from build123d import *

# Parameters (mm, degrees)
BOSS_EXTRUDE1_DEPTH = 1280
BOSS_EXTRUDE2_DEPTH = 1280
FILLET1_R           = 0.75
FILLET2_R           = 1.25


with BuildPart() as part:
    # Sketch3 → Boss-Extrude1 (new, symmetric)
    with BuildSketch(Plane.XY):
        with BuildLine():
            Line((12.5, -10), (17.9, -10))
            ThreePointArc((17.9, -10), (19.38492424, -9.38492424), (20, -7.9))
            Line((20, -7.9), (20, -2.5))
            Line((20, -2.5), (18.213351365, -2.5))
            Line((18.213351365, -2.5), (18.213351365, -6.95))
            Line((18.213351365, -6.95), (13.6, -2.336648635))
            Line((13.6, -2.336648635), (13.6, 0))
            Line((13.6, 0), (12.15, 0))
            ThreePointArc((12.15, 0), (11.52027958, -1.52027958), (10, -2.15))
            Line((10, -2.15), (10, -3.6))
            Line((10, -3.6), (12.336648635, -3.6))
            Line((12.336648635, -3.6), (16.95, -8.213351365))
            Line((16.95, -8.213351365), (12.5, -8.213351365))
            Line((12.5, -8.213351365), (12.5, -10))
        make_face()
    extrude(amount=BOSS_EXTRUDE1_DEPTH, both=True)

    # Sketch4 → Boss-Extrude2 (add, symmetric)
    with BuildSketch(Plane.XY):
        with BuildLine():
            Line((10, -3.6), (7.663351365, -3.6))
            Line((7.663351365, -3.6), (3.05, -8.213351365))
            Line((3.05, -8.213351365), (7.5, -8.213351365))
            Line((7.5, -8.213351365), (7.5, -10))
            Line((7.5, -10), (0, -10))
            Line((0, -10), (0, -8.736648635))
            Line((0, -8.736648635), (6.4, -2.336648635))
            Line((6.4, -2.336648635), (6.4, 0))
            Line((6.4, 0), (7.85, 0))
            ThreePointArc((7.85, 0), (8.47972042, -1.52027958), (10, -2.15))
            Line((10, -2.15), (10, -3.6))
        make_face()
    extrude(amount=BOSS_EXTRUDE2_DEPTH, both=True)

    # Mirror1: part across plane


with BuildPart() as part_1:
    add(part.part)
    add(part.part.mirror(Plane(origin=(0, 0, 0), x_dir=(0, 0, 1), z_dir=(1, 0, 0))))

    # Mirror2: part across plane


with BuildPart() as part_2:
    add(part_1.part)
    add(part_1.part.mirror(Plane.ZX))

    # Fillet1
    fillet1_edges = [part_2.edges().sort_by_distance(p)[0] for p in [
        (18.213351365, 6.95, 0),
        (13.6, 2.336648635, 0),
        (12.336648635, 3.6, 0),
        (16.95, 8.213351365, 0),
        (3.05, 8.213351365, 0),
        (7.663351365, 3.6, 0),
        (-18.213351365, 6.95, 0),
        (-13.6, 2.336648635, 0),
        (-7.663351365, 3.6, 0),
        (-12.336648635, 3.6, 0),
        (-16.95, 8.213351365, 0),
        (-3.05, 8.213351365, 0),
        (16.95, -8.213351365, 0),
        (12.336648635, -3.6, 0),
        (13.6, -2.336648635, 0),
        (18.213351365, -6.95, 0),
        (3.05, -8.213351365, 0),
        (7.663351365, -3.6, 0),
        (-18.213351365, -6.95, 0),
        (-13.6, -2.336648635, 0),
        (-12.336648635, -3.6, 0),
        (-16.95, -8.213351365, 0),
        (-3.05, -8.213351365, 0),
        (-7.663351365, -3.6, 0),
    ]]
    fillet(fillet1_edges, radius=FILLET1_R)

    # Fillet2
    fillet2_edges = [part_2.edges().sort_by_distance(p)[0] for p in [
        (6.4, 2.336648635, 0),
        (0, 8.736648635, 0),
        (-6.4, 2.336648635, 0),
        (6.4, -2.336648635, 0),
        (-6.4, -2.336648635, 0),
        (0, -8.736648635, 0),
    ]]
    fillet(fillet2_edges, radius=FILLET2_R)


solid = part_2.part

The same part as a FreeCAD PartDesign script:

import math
import FreeCAD as App
import Part
import Sketcher
Q = App.Units.Quantity


def edges_at(feature, points):
    """Names of the edges that pass closest to the given points."""
    edges = feature.Shape.Edges
    near = lambda p: min(range(len(edges)), key=lambda i: edges[i].distToShape(Part.Vertex(*p))[0])
    return sorted({f"Edge{near(p) + 1}" for p in points})

doc = App.newDocument("Part")
body = doc.addObject("PartDesign::Body", "Body")

sketch1 = body.newObject("Sketcher::SketchObject", "Sketch")
sketch1.AttachmentSupport = (doc.getObject("XY_Plane"), [""])
sketch1.MapMode = "FlatFace"
sketch1.addGeometry(Part.LineSegment(App.Vector(12.5, -10, 0), App.Vector(17.9, -10, 0)), False)
sketch1.addGeometry(Part.ArcOfCircle(Part.Circle(App.Vector(17.9, -7.9, 0), App.Vector(0, 0, 1), 2.1), math.radians(-90), math.radians(0)), False)
sketch1.addGeometry(Part.LineSegment(App.Vector(20, -7.9, 0), App.Vector(20, -2.5, 0)), False)
sketch1.addGeometry(Part.LineSegment(App.Vector(20, -2.5, 0), App.Vector(18.2, -2.5, 0)), False)
sketch1.addGeometry(Part.LineSegment(App.Vector(18.2, -2.5, 0), App.Vector(18.2, -7, 0)), False)
sketch1.addGeometry(Part.LineSegment(App.Vector(18.2, -7, 0), App.Vector(13.6, -2.3, 0)), False)
sketch1.addGeometry(Part.LineSegment(App.Vector(13.6, -2.3, 0), App.Vector(13.6, 0, 0)), False)
sketch1.addGeometry(Part.LineSegment(App.Vector(13.6, 0, 0), App.Vector(12.2, 0, 0)), False)
sketch1.addGeometry(Part.ArcOfCircle(Part.Circle(App.Vector(10, 0, 0), App.Vector(0, 0, 1), 2.1), math.radians(-90), math.radians(0)), False)
sketch1.addGeometry(Part.LineSegment(App.Vector(10, -2.1, 0), App.Vector(10, -3.6, 0)), False)
sketch1.addGeometry(Part.LineSegment(App.Vector(10, -3.6, 0), App.Vector(12.3, -3.6, 0)), False)
sketch1.addGeometry(Part.LineSegment(App.Vector(12.3, -3.6, 0), App.Vector(16.9, -8.2, 0)), False)
sketch1.addGeometry(Part.LineSegment(App.Vector(16.9, -8.2, 0), App.Vector(12.5, -8.2, 0)), False)
sketch1.addGeometry(Part.LineSegment(App.Vector(12.5, -8.2, 0), App.Vector(12.5, -10, 0)), False)
sketch1.addConstraint(Sketcher.Constraint("Tangent", 0, 2, 1, 1))
sketch1.addConstraint(Sketcher.Constraint("Tangent", 1, 2, 2, 1))
sketch1.addConstraint(Sketcher.Constraint("Coincident", 2, 2, 3, 1))
sketch1.addConstraint(Sketcher.Constraint("Coincident", 3, 2, 4, 1))
sketch1.addConstraint(Sketcher.Constraint("Coincident", 4, 2, 5, 1))
sketch1.addConstraint(Sketcher.Constraint("Coincident", 5, 2, 6, 1))
sketch1.addConstraint(Sketcher.Constraint("Coincident", 6, 2, 7, 1))
sketch1.addConstraint(Sketcher.Constraint("Coincident", 7, 2, 8, 2))
sketch1.addConstraint(Sketcher.Constraint("Coincident", 8, 1, 9, 1))
sketch1.addConstraint(Sketcher.Constraint("Coincident", 9, 2, 10, 1))
sketch1.addConstraint(Sketcher.Constraint("Coincident", 10, 2, 11, 1))
sketch1.addConstraint(Sketcher.Constraint("Coincident", 11, 2, 12, 1))
sketch1.addConstraint(Sketcher.Constraint("Coincident", 12, 2, 13, 1))
sketch1.addConstraint(Sketcher.Constraint("Coincident", 13, 2, 0, 1))
sketch1.addConstraint(Sketcher.Constraint("Horizontal", 0))
sketch1.addConstraint(Sketcher.Constraint("Vertical", 2))
sketch1.addConstraint(Sketcher.Constraint("Horizontal", 3))
sketch1.addConstraint(Sketcher.Constraint("Vertical", 4))
sketch1.addConstraint(Sketcher.Constraint("Vertical", 6))
sketch1.addConstraint(Sketcher.Constraint("Horizontal", 7))
sketch1.addConstraint(Sketcher.Constraint("Vertical", 9))
sketch1.addConstraint(Sketcher.Constraint("Horizontal", 10))
sketch1.addConstraint(Sketcher.Constraint("Horizontal", 12))
sketch1.addConstraint(Sketcher.Constraint("Vertical", 13))
sketch1.addConstraint(Sketcher.Constraint("PointOnObject", 8, 3, -1))
sketch1.addConstraint(Sketcher.Constraint("PointOnObject", 6, 2, -1))
sketch1.addConstraint(Sketcher.Constraint("Parallel", 5, 11))
sketch1.addConstraint(Sketcher.Constraint("Equal", 0, 2))
sketch1.addConstraint(Sketcher.Constraint("Equal", 12, 4))
sketch1.addConstraint(Sketcher.Constraint("Equal", 10, 6))
sketch1.addConstraint(Sketcher.Constraint("Equal", 7, 9))
sketch1.addConstraint(Sketcher.Constraint("Equal", 3, 13))
sketch1.addConstraint(Sketcher.Constraint("Equal", 5, 11))
sketch1.addConstraint(Sketcher.Constraint("Radius", 1, Q("2.1 mm")))
sketch1.addConstraint(Sketcher.Constraint("Angle", 5, Q("135 deg")))
sketch1.addConstraint(Sketcher.Constraint("Radius", 8, Q("2.15 mm")))
sketch1.addConstraint(Sketcher.Constraint("DistanceX", 0, 1, 0, 2, Q("5.4 mm")))
sketch1.addConstraint(Sketcher.Constraint("DistanceX", -1, 1, 8, 3, Q("10 mm")))
sketch1.addConstraint(Sketcher.Constraint("DistanceY", 0, 2, -1, 1, Q("10 mm")))
sketch1.addConstraint(Sketcher.Constraint("DistanceX", 7, 2, 7, 1, Q("1.45 mm")))
sketch1.addConstraint(Sketcher.Constraint("DistanceX", 12, 2, 12, 1, Q("4.45 mm")))
sketch1.addConstraint(Sketcher.Constraint("DistanceX", 3, 2, 3, 1, Q("1.786649 mm")))
pad1 = body.newObject("PartDesign::Pad", "Pad")
pad1.Profile = sketch1
pad1.Length = 2560
pad1.Midplane = True

sketch2 = body.newObject("Sketcher::SketchObject", "Sketch001")
sketch2.AttachmentSupport = (doc.getObject("XY_Plane"), [""])
sketch2.MapMode = "FlatFace"
sketch2.addGeometry(Part.LineSegment(App.Vector(7.7, -3.6, 0), App.Vector(10, -3.6, 0)), False)
sketch2.addGeometry(Part.LineSegment(App.Vector(10, -3.6, 0), App.Vector(10, -2.1, 0)), False)
sketch2.addGeometry(Part.ArcOfCircle(Part.Circle(App.Vector(10, 0, 0), App.Vector(0, 0, 1), 2.1), math.radians(180), math.radians(270)), False)
sketch2.addGeometry(Part.LineSegment(App.Vector(7.8, 0, 0), App.Vector(6.4, 0, 0)), False)
sketch2.addGeometry(Part.LineSegment(App.Vector(6.4, 0, 0), App.Vector(6.4, -2.3, 0)), False)
sketch2.addGeometry(Part.LineSegment(App.Vector(6.4, -2.3, 0), App.Vector(0, -8.7, 0)), False)
sketch2.addGeometry(Part.LineSegment(App.Vector(0, -8.7, 0), App.Vector(0, -10, 0)), False)
sketch2.addGeometry(Part.LineSegment(App.Vector(0, -10, 0), App.Vector(7.5, -10, 0)), False)
sketch2.addGeometry(Part.LineSegment(App.Vector(7.5, -10, 0), App.Vector(7.5, -8.2, 0)), False)
sketch2.addGeometry(Part.LineSegment(App.Vector(7.5, -8.2, 0), App.Vector(3, -8.2, 0)), False)
sketch2.addGeometry(Part.LineSegment(App.Vector(3, -8.2, 0), App.Vector(7.7, -3.6, 0)), False)
sketch2.addConstraint(Sketcher.Constraint("Coincident", 0, 2, 1, 1))
sketch2.addConstraint(Sketcher.Constraint("Coincident", 1, 2, 2, 2))
sketch2.addConstraint(Sketcher.Constraint("Coincident", 2, 1, 3, 1))
sketch2.addConstraint(Sketcher.Constraint("Coincident", 3, 2, 4, 1))
sketch2.addConstraint(Sketcher.Constraint("Coincident", 4, 2, 5, 1))
sketch2.addConstraint(Sketcher.Constraint("Coincident", 5, 2, 6, 1))
sketch2.addConstraint(Sketcher.Constraint("Coincident", 6, 2, 7, 1))
sketch2.addConstraint(Sketcher.Constraint("Coincident", 7, 2, 8, 1))
sketch2.addConstraint(Sketcher.Constraint("Coincident", 8, 2, 9, 1))
sketch2.addConstraint(Sketcher.Constraint("Coincident", 9, 2, 10, 1))
sketch2.addConstraint(Sketcher.Constraint("Coincident", 10, 2, 0, 1))
sketch2.addConstraint(Sketcher.Constraint("Horizontal", 0))
sketch2.addConstraint(Sketcher.Constraint("Vertical", 1))
sketch2.addConstraint(Sketcher.Constraint("Horizontal", 3))
sketch2.addConstraint(Sketcher.Constraint("Vertical", 4))
sketch2.addConstraint(Sketcher.Constraint("Vertical", 6))
sketch2.addConstraint(Sketcher.Constraint("Horizontal", 7))
sketch2.addConstraint(Sketcher.Constraint("Vertical", 8))
sketch2.addConstraint(Sketcher.Constraint("Horizontal", 9))
sketch2.addConstraint(Sketcher.Constraint("PointOnObject", 2, 3, -1))
sketch2.addConstraint(Sketcher.Constraint("PointOnObject", 2, 1, -1))
sketch2.addConstraint(Sketcher.Constraint("PointOnObject", 5, 2, -2))
sketch2.addConstraint(Sketcher.Constraint("Parallel", 5, 10))
sketch2.addConstraint(Sketcher.Constraint("Vertical", 2, 3, 0, 2))
sketch2.addConstraint(Sketcher.Constraint("Equal", 3, 1))
sketch2.addConstraint(Sketcher.Constraint("Equal", 0, 4))
sketch2.addConstraint(Sketcher.Constraint("Angle", 5, Q("-135 deg")))
sketch2.addConstraint(Sketcher.Constraint("Radius", 2, Q("2.15 mm")))
sketch2.addConstraint(Sketcher.Constraint("DistanceX", 7, 1, 7, 2, Q("7.5 mm")))
sketch2.addConstraint(Sketcher.Constraint("DistanceX", -1, 1, 2, 3, Q("10 mm")))
sketch2.addConstraint(Sketcher.Constraint("DistanceY", 6, 2, -1, 1, Q("10 mm")))
sketch2.addConstraint(Sketcher.Constraint("DistanceX", 3, 2, 3, 1, Q("1.45 mm")))
sketch2.addConstraint(Sketcher.Constraint("DistanceX", 9, 2, 9, 1, Q("4.45 mm")))
sketch2.addConstraint(Sketcher.Constraint("DistanceX", 0, 1, 0, 2, Q("2.336649 mm")))
pad2 = body.newObject("PartDesign::Pad", "Pad001")
pad2.Profile = sketch2
pad2.Length = 2560
pad2.Midplane = True
body2 = doc.addObject("PartDesign::Body", "Body001")
doc.recompute()

body2.BaseFeature = body
doc.recompute()

mirroring = doc.addObject("Part::Mirroring", "Mirroring")
mirroring.Source = body
mirroring.Base = App.Vector(0, 0, 0)
mirroring.Normal = App.Vector(1, 0, 0)
body3 = doc.addObject("PartDesign::Body", "Body002")
body3.BaseFeature = mirroring
boolean = body2.newObject("PartDesign::Boolean", "Boolean")
boolean.Type = "Fuse"
boolean.addObjects([body3])
doc.recompute()
body4 = doc.addObject("PartDesign::Body", "Body003")
doc.recompute()

body4.BaseFeature = body2
doc.recompute()

mirroring2 = doc.addObject("Part::Mirroring", "Mirroring001")
mirroring2.Source = body2
mirroring2.Base = App.Vector(0, 0, 0)
mirroring2.Normal = App.Vector(0, 1, 0)
body5 = doc.addObject("PartDesign::Body", "Body004")
body5.BaseFeature = mirroring2
boolean2 = body4.newObject("PartDesign::Boolean", "Boolean001")
boolean2.Type = "Fuse"
boolean2.addObjects([body5])
doc.recompute()

fillet = body4.newObject("PartDesign::Fillet", "Fillet")
fillet.Base = (boolean2, edges_at(boolean2, [
    (18.213, 6.95, 0),
    (13.6, 2.337, 0),
    (12.337, 3.6, 0),
    (16.95, 8.213, 0),
    (3.05, 8.213, 0),
    (7.663, 3.6, 0),
    (-18.213, 6.95, 0),
    (-13.6, 2.337, 0),
    (-7.663, 3.6, 0),
    (-12.337, 3.6, 0),
    (-16.95, 8.213, 0),
    (-3.05, 8.213, 0),
    (16.95, -8.213, 0),
    (12.337, -3.6, 0),
    (13.6, -2.337, 0),
    (18.213, -6.95, 0),
    (3.05, -8.213, 0),
    (7.663, -3.6, 0),
    (-18.213, -6.95, 0),
    (-13.6, -2.337, 0),
    (-12.337, -3.6, 0),
    (-16.95, -8.213, 0),
    (-3.05, -8.213, 0),
    (-7.663, -3.6, 0),
]))
fillet.Radius = 0.75
doc.recompute()

fillet2 = body4.newObject("PartDesign::Fillet", "Fillet001")
fillet2.Base = (fillet, edges_at(fillet, [
    (6.4, 2.337, 0),
    (0, 8.737, 0),
    (-6.4, 2.337, 0),
    (6.4, -2.337, 0),
    (-6.4, -2.337, 0),
    (0, -8.737, 0),
]))
fillet2.Radius = 1.25
mirroring.Visibility = False
mirroring2.Visibility = False

doc.recompute()
